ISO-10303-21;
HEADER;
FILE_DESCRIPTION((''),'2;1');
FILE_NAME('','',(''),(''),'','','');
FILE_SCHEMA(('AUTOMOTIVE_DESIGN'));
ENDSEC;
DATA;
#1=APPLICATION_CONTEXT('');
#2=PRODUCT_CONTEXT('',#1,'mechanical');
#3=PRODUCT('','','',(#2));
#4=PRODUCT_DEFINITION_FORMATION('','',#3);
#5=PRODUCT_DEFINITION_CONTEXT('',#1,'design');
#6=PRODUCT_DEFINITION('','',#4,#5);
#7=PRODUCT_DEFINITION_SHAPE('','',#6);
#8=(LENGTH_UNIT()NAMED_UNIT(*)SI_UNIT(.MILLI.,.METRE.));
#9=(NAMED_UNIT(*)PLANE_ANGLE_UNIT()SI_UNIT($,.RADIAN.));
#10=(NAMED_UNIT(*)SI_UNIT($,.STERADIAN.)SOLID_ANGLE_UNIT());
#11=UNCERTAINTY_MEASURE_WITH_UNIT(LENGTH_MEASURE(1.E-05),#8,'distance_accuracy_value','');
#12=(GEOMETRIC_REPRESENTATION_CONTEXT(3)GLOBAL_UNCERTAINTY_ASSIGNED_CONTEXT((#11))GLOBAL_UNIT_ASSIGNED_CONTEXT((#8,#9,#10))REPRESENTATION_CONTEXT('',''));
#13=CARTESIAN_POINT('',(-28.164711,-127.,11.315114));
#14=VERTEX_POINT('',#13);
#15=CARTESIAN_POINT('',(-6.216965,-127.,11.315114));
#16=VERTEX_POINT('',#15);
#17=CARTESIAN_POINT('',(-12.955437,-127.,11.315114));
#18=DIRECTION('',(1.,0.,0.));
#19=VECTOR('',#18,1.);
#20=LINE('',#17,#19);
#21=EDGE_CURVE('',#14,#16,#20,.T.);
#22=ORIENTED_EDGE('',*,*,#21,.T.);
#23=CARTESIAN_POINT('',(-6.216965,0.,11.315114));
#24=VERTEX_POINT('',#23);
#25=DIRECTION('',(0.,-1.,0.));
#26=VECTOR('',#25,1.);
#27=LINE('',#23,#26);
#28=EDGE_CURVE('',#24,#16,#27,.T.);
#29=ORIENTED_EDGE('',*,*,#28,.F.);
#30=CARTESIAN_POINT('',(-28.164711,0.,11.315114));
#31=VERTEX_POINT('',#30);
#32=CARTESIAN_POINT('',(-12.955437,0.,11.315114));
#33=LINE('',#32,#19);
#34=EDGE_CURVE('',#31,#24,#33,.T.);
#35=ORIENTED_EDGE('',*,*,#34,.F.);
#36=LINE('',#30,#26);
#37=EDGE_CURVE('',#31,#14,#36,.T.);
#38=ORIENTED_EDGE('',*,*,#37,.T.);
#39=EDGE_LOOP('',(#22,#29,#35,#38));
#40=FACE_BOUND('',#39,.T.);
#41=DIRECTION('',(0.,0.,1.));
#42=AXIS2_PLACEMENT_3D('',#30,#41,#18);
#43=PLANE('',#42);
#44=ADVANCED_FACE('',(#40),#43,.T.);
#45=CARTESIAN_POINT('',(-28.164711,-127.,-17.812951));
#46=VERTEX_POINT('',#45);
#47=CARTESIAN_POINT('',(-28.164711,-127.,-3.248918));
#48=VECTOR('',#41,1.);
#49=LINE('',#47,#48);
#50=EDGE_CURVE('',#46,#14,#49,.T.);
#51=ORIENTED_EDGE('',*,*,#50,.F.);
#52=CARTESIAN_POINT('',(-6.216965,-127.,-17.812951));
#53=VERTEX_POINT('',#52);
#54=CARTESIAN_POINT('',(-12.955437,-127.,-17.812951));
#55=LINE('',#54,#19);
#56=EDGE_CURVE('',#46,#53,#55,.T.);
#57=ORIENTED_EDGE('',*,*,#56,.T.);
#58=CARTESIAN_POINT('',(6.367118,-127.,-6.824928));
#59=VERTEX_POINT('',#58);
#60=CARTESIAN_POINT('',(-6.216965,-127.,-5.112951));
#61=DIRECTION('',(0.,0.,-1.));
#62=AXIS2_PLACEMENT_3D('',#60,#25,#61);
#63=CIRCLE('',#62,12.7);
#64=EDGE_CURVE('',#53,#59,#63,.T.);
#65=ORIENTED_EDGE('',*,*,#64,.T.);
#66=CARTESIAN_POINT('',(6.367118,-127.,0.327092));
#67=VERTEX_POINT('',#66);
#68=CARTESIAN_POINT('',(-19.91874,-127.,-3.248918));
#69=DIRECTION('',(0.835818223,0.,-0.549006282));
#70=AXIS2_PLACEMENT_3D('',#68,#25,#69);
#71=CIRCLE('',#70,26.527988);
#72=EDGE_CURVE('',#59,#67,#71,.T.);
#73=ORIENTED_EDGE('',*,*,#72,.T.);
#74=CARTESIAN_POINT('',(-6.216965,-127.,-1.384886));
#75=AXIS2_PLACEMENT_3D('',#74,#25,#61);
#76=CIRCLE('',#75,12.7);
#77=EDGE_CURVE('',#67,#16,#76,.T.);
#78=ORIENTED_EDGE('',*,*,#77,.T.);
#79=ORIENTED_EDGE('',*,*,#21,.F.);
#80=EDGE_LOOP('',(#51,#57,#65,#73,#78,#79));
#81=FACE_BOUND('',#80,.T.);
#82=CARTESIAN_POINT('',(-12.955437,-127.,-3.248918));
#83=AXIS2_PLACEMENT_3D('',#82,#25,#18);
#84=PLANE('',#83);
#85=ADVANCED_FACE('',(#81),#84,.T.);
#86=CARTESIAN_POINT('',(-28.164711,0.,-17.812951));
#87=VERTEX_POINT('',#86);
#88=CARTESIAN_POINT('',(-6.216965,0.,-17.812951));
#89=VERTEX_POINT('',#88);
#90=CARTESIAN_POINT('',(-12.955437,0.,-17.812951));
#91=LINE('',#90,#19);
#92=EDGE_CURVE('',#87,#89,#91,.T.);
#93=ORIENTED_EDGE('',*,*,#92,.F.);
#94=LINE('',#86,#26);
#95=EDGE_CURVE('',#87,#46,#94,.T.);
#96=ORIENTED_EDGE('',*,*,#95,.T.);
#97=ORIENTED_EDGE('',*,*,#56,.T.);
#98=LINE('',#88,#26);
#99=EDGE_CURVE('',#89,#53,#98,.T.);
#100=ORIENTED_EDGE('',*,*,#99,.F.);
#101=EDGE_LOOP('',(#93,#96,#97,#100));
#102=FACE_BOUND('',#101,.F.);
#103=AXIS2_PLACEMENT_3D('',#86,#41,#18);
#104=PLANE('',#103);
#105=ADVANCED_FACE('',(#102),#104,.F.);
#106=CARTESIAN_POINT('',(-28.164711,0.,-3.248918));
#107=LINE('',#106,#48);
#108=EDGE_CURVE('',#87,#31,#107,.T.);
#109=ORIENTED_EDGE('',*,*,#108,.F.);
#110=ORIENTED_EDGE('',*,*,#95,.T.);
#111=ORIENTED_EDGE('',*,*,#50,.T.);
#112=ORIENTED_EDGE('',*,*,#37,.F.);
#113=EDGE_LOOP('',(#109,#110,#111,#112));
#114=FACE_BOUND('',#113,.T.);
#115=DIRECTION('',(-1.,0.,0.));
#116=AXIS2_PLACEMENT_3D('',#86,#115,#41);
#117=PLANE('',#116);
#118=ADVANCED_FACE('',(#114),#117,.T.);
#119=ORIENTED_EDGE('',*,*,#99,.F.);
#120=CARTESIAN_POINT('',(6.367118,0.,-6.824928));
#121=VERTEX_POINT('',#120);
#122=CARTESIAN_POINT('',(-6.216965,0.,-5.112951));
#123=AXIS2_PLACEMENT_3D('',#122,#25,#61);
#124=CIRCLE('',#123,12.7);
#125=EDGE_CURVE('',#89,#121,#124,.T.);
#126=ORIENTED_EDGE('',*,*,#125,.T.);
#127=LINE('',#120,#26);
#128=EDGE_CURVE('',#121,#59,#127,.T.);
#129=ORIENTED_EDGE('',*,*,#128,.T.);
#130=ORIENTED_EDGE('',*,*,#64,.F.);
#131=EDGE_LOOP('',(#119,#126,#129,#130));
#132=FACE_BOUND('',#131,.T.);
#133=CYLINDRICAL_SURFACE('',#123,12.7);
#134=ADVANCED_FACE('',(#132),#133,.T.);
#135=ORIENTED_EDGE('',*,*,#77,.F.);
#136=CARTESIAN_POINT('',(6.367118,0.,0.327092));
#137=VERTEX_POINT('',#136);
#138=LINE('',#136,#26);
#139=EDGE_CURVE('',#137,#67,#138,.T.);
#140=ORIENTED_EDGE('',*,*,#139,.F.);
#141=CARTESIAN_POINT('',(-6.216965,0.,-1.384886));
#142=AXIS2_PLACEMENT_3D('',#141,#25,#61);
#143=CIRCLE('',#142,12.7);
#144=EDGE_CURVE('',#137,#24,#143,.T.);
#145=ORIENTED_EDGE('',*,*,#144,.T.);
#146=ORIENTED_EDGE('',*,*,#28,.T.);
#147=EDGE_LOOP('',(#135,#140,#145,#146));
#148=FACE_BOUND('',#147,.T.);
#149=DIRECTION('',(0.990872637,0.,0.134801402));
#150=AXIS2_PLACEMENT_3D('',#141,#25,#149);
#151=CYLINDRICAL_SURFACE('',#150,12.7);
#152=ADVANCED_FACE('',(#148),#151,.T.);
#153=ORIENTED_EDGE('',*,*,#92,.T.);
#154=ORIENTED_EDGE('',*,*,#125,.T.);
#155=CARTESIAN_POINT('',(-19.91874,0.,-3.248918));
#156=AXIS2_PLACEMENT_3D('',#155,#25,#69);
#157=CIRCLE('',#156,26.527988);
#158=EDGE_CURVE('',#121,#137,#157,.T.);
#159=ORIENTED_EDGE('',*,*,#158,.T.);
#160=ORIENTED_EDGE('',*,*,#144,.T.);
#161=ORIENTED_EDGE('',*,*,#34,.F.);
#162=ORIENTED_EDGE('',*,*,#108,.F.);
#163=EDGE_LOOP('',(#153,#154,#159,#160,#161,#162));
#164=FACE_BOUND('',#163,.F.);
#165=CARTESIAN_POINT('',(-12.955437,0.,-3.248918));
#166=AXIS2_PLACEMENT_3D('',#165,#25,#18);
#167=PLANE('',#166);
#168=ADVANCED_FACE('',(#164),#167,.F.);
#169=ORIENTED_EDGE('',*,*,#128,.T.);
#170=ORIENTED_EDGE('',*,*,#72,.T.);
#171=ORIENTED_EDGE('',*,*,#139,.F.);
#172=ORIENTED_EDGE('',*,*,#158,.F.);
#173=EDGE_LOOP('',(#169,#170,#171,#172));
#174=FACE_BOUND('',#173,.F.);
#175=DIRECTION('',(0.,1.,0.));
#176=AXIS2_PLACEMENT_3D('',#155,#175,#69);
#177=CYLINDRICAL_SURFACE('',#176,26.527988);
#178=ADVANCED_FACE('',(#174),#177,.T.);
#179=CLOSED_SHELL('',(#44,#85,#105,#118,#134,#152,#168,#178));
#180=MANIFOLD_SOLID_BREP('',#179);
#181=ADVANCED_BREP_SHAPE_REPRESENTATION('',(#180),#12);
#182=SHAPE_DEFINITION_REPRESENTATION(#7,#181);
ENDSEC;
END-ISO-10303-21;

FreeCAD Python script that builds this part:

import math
import FreeCAD as App
import Part
import Sketcher

V = App.Vector
Q = App.Units.Quantity


def edges_at(feature, points):
    """Names of the edges that pass closest to the given points."""
    edges = feature.Shape.Edges
    near = lambda p: min(range(len(edges)), key=lambda i: edges[i].distToShape(Part.Vertex(*p))[0])
    return sorted({f"Edge{near(p) + 1}" for p in points})

doc = App.newDocument("Part")
body = doc.addObject("PartDesign::Body", "Body")

sketch1 = doc.addObject("Sketcher::SketchObject", "Sketch")
body.addObject(sketch1)
sketch1.AttachmentSupport = (doc.XZ_Plane, [""])
sketch1.MapMode = "FlatFace"
sketch1.addGeometry([
    Part.LineSegment(V(-28, 11, 0), V(-28, -18, 0)),
    Part.LineSegment(V(-28, -18, 0), V(2, -18, 0)),
    Part.ArcOfCircle(Part.Circle(V(-20, -3, 0), V(0, 0, 1), 27), math.radians(-33), math.radians(33)),
    Part.LineSegment(V(2, 11, 0), V(-28, 11, 0)),
], False)
sketch1.addConstraint([
    Sketcher.Constraint("Coincident", 0, 2, 1, 1),
    Sketcher.Constraint("Coincident", 1, 2, 2, 1),
    Sketcher.Constraint("Coincident", 2, 2, 3, 1),
    Sketcher.Constraint("Coincident", 3, 2, 0, 1),
    Sketcher.Constraint("Vertical", 0),
    Sketcher.Constraint("Horizontal", 1),
    Sketcher.Constraint("Horizontal", 3),
    Sketcher.Constraint("Vertical", 1, 2, 2, 2),
    Sketcher.Constraint("Radius", 2, Q("26.527988 mm")),
    Sketcher.Constraint("DistanceX", 1, 1, 1, 2, Q("30.418547 mm")),
    Sketcher.Constraint("DistanceY", 0, 2, 0, 1, Q("29.128064 mm")),
    Sketcher.Constraint("DistanceX", 2, 3, -1, 1, Q("19.91874 mm")),
    Sketcher.Constraint("DistanceY", 2, 3, -1, 1, Q("3.248918 mm")),
])
pad1 = doc.addObject("PartDesign::Pad", "Pad")
body.addObject(pad1)
pad1.Profile = sketch1
pad1.Length = Q("5 in")
doc.recompute()

fillet = doc.addObject("PartDesign::Fillet", "Fillet")
body.addObject(fillet)
fillet.Base = (pad1, edges_at(pad1, [(2.254, -63.5, 11.315), (2.254, -63.5, -17.813)]))
fillet.Radius = Q("0.5 in")

doc.recompute()
